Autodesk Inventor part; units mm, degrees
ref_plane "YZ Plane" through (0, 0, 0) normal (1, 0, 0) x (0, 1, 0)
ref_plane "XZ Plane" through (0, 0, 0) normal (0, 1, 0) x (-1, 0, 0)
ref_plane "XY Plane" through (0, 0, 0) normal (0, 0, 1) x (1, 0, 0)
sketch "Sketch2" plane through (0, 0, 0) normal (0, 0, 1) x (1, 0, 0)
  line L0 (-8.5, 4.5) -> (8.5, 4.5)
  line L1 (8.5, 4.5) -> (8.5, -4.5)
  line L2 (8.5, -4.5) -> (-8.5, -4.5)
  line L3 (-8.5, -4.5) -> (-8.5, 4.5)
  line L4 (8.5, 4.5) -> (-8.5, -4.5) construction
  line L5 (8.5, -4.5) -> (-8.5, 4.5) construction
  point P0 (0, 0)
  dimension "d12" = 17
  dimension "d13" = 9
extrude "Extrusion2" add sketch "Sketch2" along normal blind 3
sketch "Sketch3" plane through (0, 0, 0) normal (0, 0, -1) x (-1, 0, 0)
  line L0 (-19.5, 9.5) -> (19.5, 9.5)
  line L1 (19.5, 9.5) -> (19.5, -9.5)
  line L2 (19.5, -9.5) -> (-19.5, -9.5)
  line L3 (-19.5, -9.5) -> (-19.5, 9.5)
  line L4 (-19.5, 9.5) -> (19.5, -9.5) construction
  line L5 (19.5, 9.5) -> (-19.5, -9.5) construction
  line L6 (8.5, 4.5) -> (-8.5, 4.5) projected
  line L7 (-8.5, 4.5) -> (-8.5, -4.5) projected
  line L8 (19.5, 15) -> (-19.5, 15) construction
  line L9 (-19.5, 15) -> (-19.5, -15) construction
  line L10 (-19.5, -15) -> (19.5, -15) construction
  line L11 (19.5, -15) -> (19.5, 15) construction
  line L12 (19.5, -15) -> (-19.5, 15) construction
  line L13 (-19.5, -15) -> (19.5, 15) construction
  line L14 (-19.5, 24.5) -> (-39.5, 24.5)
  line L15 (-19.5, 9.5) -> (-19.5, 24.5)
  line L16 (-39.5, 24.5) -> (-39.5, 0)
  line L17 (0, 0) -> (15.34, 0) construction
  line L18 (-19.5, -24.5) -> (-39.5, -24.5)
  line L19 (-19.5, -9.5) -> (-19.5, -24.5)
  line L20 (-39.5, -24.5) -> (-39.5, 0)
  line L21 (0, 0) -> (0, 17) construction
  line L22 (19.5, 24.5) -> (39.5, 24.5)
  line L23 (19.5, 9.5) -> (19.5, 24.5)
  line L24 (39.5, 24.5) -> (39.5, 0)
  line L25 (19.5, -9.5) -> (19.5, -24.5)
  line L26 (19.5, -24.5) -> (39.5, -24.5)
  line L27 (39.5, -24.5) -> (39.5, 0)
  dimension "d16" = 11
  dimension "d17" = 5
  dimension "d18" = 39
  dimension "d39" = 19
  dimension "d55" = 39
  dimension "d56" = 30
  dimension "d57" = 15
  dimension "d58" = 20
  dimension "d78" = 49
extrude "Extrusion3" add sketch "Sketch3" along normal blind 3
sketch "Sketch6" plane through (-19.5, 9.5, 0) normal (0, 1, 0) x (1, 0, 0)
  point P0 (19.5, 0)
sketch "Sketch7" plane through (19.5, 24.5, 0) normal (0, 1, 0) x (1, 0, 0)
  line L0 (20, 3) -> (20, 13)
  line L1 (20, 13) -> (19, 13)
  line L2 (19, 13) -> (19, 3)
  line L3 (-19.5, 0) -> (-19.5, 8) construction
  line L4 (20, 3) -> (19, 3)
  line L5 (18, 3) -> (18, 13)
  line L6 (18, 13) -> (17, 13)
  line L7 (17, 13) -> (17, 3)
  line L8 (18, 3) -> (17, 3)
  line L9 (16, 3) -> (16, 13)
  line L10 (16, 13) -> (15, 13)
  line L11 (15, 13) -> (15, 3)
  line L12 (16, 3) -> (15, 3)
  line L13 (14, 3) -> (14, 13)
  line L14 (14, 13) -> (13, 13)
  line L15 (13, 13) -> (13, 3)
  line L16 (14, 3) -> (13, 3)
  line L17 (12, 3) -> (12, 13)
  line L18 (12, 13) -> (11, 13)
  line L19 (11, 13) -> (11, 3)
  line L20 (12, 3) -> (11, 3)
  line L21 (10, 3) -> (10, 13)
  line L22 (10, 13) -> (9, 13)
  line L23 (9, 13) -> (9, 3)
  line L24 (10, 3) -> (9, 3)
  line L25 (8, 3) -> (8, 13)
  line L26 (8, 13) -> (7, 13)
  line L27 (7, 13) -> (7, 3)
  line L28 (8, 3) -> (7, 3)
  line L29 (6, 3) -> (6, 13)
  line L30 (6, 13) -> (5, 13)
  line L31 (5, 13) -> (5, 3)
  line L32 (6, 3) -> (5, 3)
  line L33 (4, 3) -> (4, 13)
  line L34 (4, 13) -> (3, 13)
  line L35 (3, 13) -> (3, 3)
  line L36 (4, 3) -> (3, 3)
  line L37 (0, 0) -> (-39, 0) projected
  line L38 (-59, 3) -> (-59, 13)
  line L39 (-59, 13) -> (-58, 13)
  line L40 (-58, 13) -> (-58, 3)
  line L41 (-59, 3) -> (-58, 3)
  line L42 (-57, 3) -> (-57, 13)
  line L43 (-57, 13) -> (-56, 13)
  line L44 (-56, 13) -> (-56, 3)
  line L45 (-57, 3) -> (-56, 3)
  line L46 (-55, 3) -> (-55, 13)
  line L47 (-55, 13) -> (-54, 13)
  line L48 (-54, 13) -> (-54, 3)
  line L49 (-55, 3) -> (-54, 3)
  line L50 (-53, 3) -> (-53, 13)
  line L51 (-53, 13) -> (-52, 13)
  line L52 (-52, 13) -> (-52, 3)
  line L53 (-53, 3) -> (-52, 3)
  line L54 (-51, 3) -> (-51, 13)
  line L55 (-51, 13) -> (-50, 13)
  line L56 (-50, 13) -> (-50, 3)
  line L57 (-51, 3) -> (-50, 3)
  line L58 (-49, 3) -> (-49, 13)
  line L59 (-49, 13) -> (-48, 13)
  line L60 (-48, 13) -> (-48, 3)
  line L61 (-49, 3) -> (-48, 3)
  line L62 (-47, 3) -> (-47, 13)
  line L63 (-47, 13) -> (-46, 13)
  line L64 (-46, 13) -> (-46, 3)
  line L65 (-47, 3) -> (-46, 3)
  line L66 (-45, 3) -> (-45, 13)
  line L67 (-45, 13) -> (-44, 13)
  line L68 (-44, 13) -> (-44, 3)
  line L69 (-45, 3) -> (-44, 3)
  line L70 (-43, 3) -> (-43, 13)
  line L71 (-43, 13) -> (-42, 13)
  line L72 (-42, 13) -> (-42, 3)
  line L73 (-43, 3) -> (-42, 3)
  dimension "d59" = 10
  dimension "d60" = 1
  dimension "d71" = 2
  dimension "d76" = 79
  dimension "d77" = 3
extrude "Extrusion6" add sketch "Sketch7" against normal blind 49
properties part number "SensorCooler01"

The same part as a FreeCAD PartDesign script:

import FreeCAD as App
import Part
import Sketcher
from FreeCAD import Vector
Q = App.Units.Quantity


def add_polygon(sketch, points):
    """Adds a closed chain of lines whose ends are joined by coincident constraints."""
    first, n = sketch.GeometryCount, len(points)
    for a, b in zip(points, points[1:] + points[:1]):
        sketch.addGeometry(Part.LineSegment(App.Vector(*a, 0), App.Vector(*b, 0)), False)
    for i in range(n):
        sketch.addConstraint(Sketcher.Constraint("Coincident", first + i, 2, first + (i + 1) % n, 1))

doc = App.newDocument("Part")
body = doc.addObject("PartDesign::Body", "Body")

# Sketch on XY plane
sketch1 = doc.addObject("Sketcher::SketchObject", "Sketch")
body.addObject(sketch1)
sketch1.AttachmentSupport = (doc.XY_Plane, [""])
sketch1.MapMode = "FlatFace"
add_polygon(sketch1, [(8, 4), (-8, 4), (-8, -4), (8, -4)])  # lines 0-3
sketch1.addConstraint([
    Sketcher.Constraint("Horizontal", 0),
    Sketcher.Constraint("Vertical", 1),
    Sketcher.Constraint("Horizontal", 2),
    Sketcher.Constraint("Vertical", 3),
    Sketcher.Constraint("Symmetric", 0, 2, 2, 2, -1, 1),
    Sketcher.Constraint("DistanceX", 0, 2, 0, 1, Q("17 mm")),
    Sketcher.Constraint("DistanceY", 1, 2, 1, 1, Q("9 mm")),
])
pad1 = doc.addObject("PartDesign::Pad", "Pad")
body.addObject(pad1)
pad1.Profile = sketch1
pad1.Length = 3

# Sketch on XY plane
sketch2 = doc.addObject("Sketcher::SketchObject", "Sketch001")
body.addObject(sketch2)
sketch2.AttachmentSupport = (doc.XY_Plane, [""])
sketch2.MapMode = "FlatFace"
add_polygon(sketch2, [(-20, 10), (20, 10), (20, 24), (40, 24), (40, -24), (20, -24), (20, -10), (-20, -10), (-20, -24), (-40, -24), (-40, 24), (-20, 24)])  # lines 0-11
sketch2.addConstraint([
    Sketcher.Constraint("Horizontal", 0),
    Sketcher.Constraint("Vertical", 1),
    Sketcher.Constraint("Horizontal", 2),
    Sketcher.Constraint("Vertical", 3),
    Sketcher.Constraint("Horizontal", 4),
    Sketcher.Constraint("Vertical", 5),
    Sketcher.Constraint("Horizontal", 6),
    Sketcher.Constraint("Vertical", 7),
    Sketcher.Constraint("Horizontal", 8),
    Sketcher.Constraint("Vertical", 9),
    Sketcher.Constraint("Horizontal", 10),
    Sketcher.Constraint("Vertical", 11),
    Sketcher.Constraint("Symmetric", 0, 2, 6, 2, -1, 1),
    Sketcher.Constraint("Symmetric", 2, 2, 8, 2, -1, 1),
    Sketcher.Constraint("Symmetric", 4, 2, 10, 2, -1, 1),
    Sketcher.Constraint("Symmetric", 4, 2, 7, 2, -2),
    Sketcher.Constraint("DistanceX", 0, 1, 0, 2, Q("39 mm")),
    Sketcher.Constraint("DistanceX", 2, 1, 2, 2, Q("20 mm")),
    Sketcher.Constraint("DistanceY", 1, 1, 1, 2, Q("15 mm")),
    Sketcher.Constraint("DistanceY", 3, 2, 3, 1, Q("49 mm")),
])
pad2 = doc.addObject("PartDesign::Pad", "Pad001")
body.addObject(pad2)
pad2.Profile = sketch2
pad2.Length = 3
pad2.Reversed = True

# Sketch on XZ plane
sketch3 = doc.addObject("Sketcher::SketchObject", "Sketch002")
body.addObject(sketch3)
sketch3.AttachmentSupport = (doc.XZ_Plane, [""])
sketch3.MapMode = "FlatFace"
sketch3.AttachmentOffset = App.Placement(Vector(0, 0, -24.5), App.Rotation())
add_polygon(sketch3, [(38.5, -3), (39.5, -3), (39.5, -13), (38.5, -13)])  # lines 0-3
add_polygon(sketch3, [(36.5, -3), (37.5, -3), (37.5, -13), (36.5, -13)])  # lines 4-7
add_polygon(sketch3, [(34.5, -3), (35.5, -3), (35.5, -13), (34.5, -13)])  # lines 8-11
add_polygon(sketch3, [(32.5, -3), (33.5, -3), (33.5, -13), (32.5, -13)])  # lines 12-15
add_polygon(sketch3, [(30.5, -3), (31.5, -3), (31.5, -13), (30.5, -13)])  # lines 16-19
add_polygon(sketch3, [(28.5, -3), (29.5, -3), (29.5, -13), (28.5, -13)])  # lines 20-23
add_polygon(sketch3, [(26.5, -3), (27.5, -3), (27.5, -13), (26.5, -13)])  # lines 24-27
add_polygon(sketch3, [(24.5, -3), (25.5, -3), (25.5, -13), (24.5, -13)])  # lines 28-31
add_polygon(sketch3, [(22.5, -3), (23.5, -3), (23.5, -13), (22.5, -13)])  # lines 32-35
add_polygon(sketch3, [(-39.5, -13), (-39.5, -3), (-38.5, -3), (-38.5, -13)])  # lines 36-39
add_polygon(sketch3, [(-37.5, -13), (-37.5, -3), (-36.5, -3), (-36.5, -13)])  # lines 40-43
add_polygon(sketch3, [(-35.5, -13), (-35.5, -3), (-34.5, -3), (-34.5, -13)])  # lines 44-47
add_polygon(sketch3, [(-33.5, -13), (-33.5, -3), (-32.5, -3), (-32.5, -13)])  # lines 48-51
add_polygon(sketch3, [(-31.5, -13), (-31.5, -3), (-30.5, -3), (-30.5, -13)])  # lines 52-55
add_polygon(sketch3, [(-29.5, -13), (-29.5, -3), (-28.5, -3), (-28.5, -13)])  # lines 56-59
add_polygon(sketch3, [(-27.5, -13), (-27.5, -3), (-26.5, -3), (-26.5, -13)])  # lines 60-63
add_polygon(sketch3, [(-25.5, -13), (-25.5, -3), (-24.5, -3), (-24.5, -13)])  # lines 64-67
add_polygon(sketch3, [(-23.5, -13), (-23.5, -3), (-22.5, -3), (-22.5, -13)])  # lines 68-71
sketch3.addConstraint([
    Sketcher.Constraint("Horizontal", 0),
    Sketcher.Constraint("Vertical", 1),
    Sketcher.Constraint("Horizontal", 2),
    Sketcher.Constraint("Vertical", 3),
    Sketcher.Constraint("Horizontal", 4),
    Sketcher.Constraint("Vertical", 5),
    Sketcher.Constraint("Horizontal", 6),
    Sketcher.Constraint("Vertical", 7),
    Sketcher.Constraint("Horizontal", 8),
    Sketcher.Constraint("Vertical", 9),
    Sketcher.Constraint("Horizontal", 10),
    Sketcher.Constraint("Vertical", 11),
    Sketcher.Constraint("Horizontal", 12),
    Sketcher.Constraint("Vertical", 13),
    Sketcher.Constraint("Horizontal", 14),
    Sketcher.Constraint("Vertical", 15),
    Sketcher.Constraint("Horizontal", 16),
    Sketcher.Constraint("Vertical", 17),
    Sketcher.Constraint("Horizontal", 18),
    Sketcher.Constraint("Vertical", 19),
    Sketcher.Constraint("Horizontal", 20),
    Sketcher.Constraint("Vertical", 21),
    Sketcher.Constraint("Horizontal", 22),
    Sketcher.Constraint("Vertical", 23),
    Sketcher.Constraint("Horizontal", 24),
    Sketcher.Constraint("Vertical", 25),
    Sketcher.Constraint("Horizontal", 26),
    Sketcher.Constraint("Vertical", 27),
    Sketcher.Constraint("Horizontal", 28),
    Sketcher.Constraint("Vertical", 29),
    Sketcher.Constraint("Horizontal", 30),
    Sketcher.Constraint("Vertical", 31),
    Sketcher.Constraint("Horizontal", 32),
    Sketcher.Constraint("Vertical", 33),
    Sketcher.Constraint("Horizontal", 34),
    Sketcher.Constraint("Vertical", 35),
    Sketcher.Constraint("Vertical", 36),
    Sketcher.Constraint("Horizontal", 37),
    Sketcher.Constraint("Vertical", 38),
    Sketcher.Constraint("Horizontal", 39),
    Sketcher.Constraint("Vertical", 40),
    Sketcher.Constraint("Horizontal", 41),
    Sketcher.Constraint("Vertical", 42),
    Sketcher.Constraint("Horizontal", 43),
    Sketcher.Constraint("Vertical", 44),
    Sketcher.Constraint("Horizontal", 45),
    Sketcher.Constraint("Vertical", 46),
    Sketcher.Constraint("Horizontal", 47),
    Sketcher.Constraint("Vertical", 48),
    Sketcher.Constraint("Horizontal", 49),
    Sketcher.Constraint("Vertical", 50),
    Sketcher.Constraint("Horizontal", 51),
    Sketcher.Constraint("Vertical", 52),
    Sketcher.Constraint("Horizontal", 53),
    Sketcher.Constraint("Vertical", 54),
    Sketcher.Constraint("Horizontal", 55),
    Sketcher.Constraint("Vertical", 56),
    Sketcher.Constraint("Horizontal", 57),
    Sketcher.Constraint("Vertical", 58),
    Sketcher.Constraint("Horizontal", 59),
    Sketcher.Constraint("Vertical", 60),
    Sketcher.Constraint("Horizontal", 61),
    Sketcher.Constraint("Vertical", 62),
    Sketcher.Constraint("Horizontal", 63),
    Sketcher.Constraint("Vertical", 64),
    Sketcher.Constraint("Horizontal", 65),
    Sketcher.Constraint("Vertical", 66),
    Sketcher.Constraint("Horizontal", 67),
    Sketcher.Constraint("Vertical", 68),
    Sketcher.Constraint("Horizontal", 69),
    Sketcher.Constraint("Vertical", 70),
    Sketcher.Constraint("Horizontal", 71),
    Sketcher.Constraint("Symmetric", 0, 2, 36, 2, -2),
    Sketcher.Constraint("Symmetric", 2, 2, 38, 2, -2),
    Sketcher.Constraint("Symmetric", 4, 2, 40, 2, -2),
    Sketcher.Constraint("Symmetric", 6, 2, 42, 2, -2),
    Sketcher.Constraint("Symmetric", 8, 2, 44, 2, -2),
    Sketcher.Constraint("Symmetric", 10, 2, 46, 2, -2),
    Sketcher.Constraint("Symmetric", 12, 2, 48, 2, -2),
    Sketcher.Constraint("Symmetric", 14, 2, 50, 2, -2),
    Sketcher.Constraint("Symmetric", 16, 2, 52, 2, -2),
    Sketcher.Constraint("Symmetric", 18, 2, 54, 2, -2),
    Sketcher.Constraint("Symmetric", 20, 2, 56, 2, -2),
    Sketcher.Constraint("Symmetric", 22, 2, 58, 2, -2),
    Sketcher.Constraint("Symmetric", 24, 2, 60, 2, -2),
    Sketcher.Constraint("Symmetric", 26, 2, 62, 2, -2),
    Sketcher.Constraint("Symmetric", 28, 2, 64, 2, -2),
    Sketcher.Constraint("Symmetric", 30, 2, 66, 2, -2),
    Sketcher.Constraint("Symmetric", 32, 2, 68, 2, -2),
    Sketcher.Constraint("Symmetric", 34, 2, 70, 2, -2),
    Sketcher.Constraint("Horizontal", 3, 2, 4, 2),
    Sketcher.Constraint("Horizontal", 2, 2, 5, 2),
    Sketcher.Constraint("Horizontal", 7, 2, 8, 2),
    Sketcher.Constraint("Horizontal", 6, 2, 9, 2),
    Sketcher.Constraint("Horizontal", 11, 2, 12, 2),
    Sketcher.Constraint("Horizontal", 10, 2, 13, 2),
    Sketcher.Constraint("Horizontal", 15, 2, 16, 2),
    Sketcher.Constraint("Horizontal", 14, 2, 17, 2),
    Sketcher.Constraint("Horizontal", 19, 2, 20, 2),
    Sketcher.Constraint("Horizontal", 18, 2, 21, 2),
    Sketcher.Constraint("Horizontal", 23, 2, 24, 2),
    Sketcher.Constraint("Horizontal", 22, 2, 25, 2),
    Sketcher.Constraint("Horizontal", 27, 2, 28, 2),
    Sketcher.Constraint("Horizontal", 26, 2, 29, 2),
    Sketcher.Constraint("Horizontal", 31, 2, 32, 2),
    Sketcher.Constraint("Horizontal", 30, 2, 33, 2),
    Sketcher.Constraint("Equal", 2, 4),
    Sketcher.Constraint("Equal", 6, 8),
    Sketcher.Constraint("Equal", 10, 12),
    Sketcher.Constraint("Equal", 14, 16),
    Sketcher.Constraint("Equal", 18, 20),
    Sketcher.Constraint("Equal", 22, 24),
    Sketcher.Constraint("Equal", 26, 28),
    Sketcher.Constraint("Equal", 30, 32),
    Sketcher.Constraint("DistanceX", 0, 1, 0, 2, Q("1 mm")),
    Sketcher.Constraint("DistanceY", 1, 2, 1, 1, Q("10 mm")),
    Sketcher.Constraint("DistanceY", 0, 2, -1, 1, Q("3 mm")),
    Sketcher.Constraint("DistanceX", -1, 1, 0, 2, Q("39.5 mm")),
    Sketcher.Constraint("DistanceX", -1, 1, 4, 2, Q("37.5 mm")),
    Sketcher.Constraint("DistanceX", -1, 1, 8, 2, Q("35.5 mm")),
    Sketcher.Constraint("DistanceX", -1, 1, 12, 2, Q("33.5 mm")),
    Sketcher.Constraint("DistanceX", -1, 1, 16, 2, Q("31.5 mm")),
    Sketcher.Constraint("DistanceX", -1, 1, 20, 2, Q("29.5 mm")),
    Sketcher.Constraint("DistanceX", -1, 1, 24, 2, Q("27.5 mm")),
    Sketcher.Constraint("DistanceX", -1, 1, 28, 2, Q("25.5 mm")),
    Sketcher.Constraint("DistanceX", -1, 1, 32, 2, Q("23.5 mm")),
])
pad3 = doc.addObject("PartDesign::Pad", "Pad002")
body.addObject(pad3)
pad3.Profile = sketch3
pad3.Length = 49

doc.recompute()
